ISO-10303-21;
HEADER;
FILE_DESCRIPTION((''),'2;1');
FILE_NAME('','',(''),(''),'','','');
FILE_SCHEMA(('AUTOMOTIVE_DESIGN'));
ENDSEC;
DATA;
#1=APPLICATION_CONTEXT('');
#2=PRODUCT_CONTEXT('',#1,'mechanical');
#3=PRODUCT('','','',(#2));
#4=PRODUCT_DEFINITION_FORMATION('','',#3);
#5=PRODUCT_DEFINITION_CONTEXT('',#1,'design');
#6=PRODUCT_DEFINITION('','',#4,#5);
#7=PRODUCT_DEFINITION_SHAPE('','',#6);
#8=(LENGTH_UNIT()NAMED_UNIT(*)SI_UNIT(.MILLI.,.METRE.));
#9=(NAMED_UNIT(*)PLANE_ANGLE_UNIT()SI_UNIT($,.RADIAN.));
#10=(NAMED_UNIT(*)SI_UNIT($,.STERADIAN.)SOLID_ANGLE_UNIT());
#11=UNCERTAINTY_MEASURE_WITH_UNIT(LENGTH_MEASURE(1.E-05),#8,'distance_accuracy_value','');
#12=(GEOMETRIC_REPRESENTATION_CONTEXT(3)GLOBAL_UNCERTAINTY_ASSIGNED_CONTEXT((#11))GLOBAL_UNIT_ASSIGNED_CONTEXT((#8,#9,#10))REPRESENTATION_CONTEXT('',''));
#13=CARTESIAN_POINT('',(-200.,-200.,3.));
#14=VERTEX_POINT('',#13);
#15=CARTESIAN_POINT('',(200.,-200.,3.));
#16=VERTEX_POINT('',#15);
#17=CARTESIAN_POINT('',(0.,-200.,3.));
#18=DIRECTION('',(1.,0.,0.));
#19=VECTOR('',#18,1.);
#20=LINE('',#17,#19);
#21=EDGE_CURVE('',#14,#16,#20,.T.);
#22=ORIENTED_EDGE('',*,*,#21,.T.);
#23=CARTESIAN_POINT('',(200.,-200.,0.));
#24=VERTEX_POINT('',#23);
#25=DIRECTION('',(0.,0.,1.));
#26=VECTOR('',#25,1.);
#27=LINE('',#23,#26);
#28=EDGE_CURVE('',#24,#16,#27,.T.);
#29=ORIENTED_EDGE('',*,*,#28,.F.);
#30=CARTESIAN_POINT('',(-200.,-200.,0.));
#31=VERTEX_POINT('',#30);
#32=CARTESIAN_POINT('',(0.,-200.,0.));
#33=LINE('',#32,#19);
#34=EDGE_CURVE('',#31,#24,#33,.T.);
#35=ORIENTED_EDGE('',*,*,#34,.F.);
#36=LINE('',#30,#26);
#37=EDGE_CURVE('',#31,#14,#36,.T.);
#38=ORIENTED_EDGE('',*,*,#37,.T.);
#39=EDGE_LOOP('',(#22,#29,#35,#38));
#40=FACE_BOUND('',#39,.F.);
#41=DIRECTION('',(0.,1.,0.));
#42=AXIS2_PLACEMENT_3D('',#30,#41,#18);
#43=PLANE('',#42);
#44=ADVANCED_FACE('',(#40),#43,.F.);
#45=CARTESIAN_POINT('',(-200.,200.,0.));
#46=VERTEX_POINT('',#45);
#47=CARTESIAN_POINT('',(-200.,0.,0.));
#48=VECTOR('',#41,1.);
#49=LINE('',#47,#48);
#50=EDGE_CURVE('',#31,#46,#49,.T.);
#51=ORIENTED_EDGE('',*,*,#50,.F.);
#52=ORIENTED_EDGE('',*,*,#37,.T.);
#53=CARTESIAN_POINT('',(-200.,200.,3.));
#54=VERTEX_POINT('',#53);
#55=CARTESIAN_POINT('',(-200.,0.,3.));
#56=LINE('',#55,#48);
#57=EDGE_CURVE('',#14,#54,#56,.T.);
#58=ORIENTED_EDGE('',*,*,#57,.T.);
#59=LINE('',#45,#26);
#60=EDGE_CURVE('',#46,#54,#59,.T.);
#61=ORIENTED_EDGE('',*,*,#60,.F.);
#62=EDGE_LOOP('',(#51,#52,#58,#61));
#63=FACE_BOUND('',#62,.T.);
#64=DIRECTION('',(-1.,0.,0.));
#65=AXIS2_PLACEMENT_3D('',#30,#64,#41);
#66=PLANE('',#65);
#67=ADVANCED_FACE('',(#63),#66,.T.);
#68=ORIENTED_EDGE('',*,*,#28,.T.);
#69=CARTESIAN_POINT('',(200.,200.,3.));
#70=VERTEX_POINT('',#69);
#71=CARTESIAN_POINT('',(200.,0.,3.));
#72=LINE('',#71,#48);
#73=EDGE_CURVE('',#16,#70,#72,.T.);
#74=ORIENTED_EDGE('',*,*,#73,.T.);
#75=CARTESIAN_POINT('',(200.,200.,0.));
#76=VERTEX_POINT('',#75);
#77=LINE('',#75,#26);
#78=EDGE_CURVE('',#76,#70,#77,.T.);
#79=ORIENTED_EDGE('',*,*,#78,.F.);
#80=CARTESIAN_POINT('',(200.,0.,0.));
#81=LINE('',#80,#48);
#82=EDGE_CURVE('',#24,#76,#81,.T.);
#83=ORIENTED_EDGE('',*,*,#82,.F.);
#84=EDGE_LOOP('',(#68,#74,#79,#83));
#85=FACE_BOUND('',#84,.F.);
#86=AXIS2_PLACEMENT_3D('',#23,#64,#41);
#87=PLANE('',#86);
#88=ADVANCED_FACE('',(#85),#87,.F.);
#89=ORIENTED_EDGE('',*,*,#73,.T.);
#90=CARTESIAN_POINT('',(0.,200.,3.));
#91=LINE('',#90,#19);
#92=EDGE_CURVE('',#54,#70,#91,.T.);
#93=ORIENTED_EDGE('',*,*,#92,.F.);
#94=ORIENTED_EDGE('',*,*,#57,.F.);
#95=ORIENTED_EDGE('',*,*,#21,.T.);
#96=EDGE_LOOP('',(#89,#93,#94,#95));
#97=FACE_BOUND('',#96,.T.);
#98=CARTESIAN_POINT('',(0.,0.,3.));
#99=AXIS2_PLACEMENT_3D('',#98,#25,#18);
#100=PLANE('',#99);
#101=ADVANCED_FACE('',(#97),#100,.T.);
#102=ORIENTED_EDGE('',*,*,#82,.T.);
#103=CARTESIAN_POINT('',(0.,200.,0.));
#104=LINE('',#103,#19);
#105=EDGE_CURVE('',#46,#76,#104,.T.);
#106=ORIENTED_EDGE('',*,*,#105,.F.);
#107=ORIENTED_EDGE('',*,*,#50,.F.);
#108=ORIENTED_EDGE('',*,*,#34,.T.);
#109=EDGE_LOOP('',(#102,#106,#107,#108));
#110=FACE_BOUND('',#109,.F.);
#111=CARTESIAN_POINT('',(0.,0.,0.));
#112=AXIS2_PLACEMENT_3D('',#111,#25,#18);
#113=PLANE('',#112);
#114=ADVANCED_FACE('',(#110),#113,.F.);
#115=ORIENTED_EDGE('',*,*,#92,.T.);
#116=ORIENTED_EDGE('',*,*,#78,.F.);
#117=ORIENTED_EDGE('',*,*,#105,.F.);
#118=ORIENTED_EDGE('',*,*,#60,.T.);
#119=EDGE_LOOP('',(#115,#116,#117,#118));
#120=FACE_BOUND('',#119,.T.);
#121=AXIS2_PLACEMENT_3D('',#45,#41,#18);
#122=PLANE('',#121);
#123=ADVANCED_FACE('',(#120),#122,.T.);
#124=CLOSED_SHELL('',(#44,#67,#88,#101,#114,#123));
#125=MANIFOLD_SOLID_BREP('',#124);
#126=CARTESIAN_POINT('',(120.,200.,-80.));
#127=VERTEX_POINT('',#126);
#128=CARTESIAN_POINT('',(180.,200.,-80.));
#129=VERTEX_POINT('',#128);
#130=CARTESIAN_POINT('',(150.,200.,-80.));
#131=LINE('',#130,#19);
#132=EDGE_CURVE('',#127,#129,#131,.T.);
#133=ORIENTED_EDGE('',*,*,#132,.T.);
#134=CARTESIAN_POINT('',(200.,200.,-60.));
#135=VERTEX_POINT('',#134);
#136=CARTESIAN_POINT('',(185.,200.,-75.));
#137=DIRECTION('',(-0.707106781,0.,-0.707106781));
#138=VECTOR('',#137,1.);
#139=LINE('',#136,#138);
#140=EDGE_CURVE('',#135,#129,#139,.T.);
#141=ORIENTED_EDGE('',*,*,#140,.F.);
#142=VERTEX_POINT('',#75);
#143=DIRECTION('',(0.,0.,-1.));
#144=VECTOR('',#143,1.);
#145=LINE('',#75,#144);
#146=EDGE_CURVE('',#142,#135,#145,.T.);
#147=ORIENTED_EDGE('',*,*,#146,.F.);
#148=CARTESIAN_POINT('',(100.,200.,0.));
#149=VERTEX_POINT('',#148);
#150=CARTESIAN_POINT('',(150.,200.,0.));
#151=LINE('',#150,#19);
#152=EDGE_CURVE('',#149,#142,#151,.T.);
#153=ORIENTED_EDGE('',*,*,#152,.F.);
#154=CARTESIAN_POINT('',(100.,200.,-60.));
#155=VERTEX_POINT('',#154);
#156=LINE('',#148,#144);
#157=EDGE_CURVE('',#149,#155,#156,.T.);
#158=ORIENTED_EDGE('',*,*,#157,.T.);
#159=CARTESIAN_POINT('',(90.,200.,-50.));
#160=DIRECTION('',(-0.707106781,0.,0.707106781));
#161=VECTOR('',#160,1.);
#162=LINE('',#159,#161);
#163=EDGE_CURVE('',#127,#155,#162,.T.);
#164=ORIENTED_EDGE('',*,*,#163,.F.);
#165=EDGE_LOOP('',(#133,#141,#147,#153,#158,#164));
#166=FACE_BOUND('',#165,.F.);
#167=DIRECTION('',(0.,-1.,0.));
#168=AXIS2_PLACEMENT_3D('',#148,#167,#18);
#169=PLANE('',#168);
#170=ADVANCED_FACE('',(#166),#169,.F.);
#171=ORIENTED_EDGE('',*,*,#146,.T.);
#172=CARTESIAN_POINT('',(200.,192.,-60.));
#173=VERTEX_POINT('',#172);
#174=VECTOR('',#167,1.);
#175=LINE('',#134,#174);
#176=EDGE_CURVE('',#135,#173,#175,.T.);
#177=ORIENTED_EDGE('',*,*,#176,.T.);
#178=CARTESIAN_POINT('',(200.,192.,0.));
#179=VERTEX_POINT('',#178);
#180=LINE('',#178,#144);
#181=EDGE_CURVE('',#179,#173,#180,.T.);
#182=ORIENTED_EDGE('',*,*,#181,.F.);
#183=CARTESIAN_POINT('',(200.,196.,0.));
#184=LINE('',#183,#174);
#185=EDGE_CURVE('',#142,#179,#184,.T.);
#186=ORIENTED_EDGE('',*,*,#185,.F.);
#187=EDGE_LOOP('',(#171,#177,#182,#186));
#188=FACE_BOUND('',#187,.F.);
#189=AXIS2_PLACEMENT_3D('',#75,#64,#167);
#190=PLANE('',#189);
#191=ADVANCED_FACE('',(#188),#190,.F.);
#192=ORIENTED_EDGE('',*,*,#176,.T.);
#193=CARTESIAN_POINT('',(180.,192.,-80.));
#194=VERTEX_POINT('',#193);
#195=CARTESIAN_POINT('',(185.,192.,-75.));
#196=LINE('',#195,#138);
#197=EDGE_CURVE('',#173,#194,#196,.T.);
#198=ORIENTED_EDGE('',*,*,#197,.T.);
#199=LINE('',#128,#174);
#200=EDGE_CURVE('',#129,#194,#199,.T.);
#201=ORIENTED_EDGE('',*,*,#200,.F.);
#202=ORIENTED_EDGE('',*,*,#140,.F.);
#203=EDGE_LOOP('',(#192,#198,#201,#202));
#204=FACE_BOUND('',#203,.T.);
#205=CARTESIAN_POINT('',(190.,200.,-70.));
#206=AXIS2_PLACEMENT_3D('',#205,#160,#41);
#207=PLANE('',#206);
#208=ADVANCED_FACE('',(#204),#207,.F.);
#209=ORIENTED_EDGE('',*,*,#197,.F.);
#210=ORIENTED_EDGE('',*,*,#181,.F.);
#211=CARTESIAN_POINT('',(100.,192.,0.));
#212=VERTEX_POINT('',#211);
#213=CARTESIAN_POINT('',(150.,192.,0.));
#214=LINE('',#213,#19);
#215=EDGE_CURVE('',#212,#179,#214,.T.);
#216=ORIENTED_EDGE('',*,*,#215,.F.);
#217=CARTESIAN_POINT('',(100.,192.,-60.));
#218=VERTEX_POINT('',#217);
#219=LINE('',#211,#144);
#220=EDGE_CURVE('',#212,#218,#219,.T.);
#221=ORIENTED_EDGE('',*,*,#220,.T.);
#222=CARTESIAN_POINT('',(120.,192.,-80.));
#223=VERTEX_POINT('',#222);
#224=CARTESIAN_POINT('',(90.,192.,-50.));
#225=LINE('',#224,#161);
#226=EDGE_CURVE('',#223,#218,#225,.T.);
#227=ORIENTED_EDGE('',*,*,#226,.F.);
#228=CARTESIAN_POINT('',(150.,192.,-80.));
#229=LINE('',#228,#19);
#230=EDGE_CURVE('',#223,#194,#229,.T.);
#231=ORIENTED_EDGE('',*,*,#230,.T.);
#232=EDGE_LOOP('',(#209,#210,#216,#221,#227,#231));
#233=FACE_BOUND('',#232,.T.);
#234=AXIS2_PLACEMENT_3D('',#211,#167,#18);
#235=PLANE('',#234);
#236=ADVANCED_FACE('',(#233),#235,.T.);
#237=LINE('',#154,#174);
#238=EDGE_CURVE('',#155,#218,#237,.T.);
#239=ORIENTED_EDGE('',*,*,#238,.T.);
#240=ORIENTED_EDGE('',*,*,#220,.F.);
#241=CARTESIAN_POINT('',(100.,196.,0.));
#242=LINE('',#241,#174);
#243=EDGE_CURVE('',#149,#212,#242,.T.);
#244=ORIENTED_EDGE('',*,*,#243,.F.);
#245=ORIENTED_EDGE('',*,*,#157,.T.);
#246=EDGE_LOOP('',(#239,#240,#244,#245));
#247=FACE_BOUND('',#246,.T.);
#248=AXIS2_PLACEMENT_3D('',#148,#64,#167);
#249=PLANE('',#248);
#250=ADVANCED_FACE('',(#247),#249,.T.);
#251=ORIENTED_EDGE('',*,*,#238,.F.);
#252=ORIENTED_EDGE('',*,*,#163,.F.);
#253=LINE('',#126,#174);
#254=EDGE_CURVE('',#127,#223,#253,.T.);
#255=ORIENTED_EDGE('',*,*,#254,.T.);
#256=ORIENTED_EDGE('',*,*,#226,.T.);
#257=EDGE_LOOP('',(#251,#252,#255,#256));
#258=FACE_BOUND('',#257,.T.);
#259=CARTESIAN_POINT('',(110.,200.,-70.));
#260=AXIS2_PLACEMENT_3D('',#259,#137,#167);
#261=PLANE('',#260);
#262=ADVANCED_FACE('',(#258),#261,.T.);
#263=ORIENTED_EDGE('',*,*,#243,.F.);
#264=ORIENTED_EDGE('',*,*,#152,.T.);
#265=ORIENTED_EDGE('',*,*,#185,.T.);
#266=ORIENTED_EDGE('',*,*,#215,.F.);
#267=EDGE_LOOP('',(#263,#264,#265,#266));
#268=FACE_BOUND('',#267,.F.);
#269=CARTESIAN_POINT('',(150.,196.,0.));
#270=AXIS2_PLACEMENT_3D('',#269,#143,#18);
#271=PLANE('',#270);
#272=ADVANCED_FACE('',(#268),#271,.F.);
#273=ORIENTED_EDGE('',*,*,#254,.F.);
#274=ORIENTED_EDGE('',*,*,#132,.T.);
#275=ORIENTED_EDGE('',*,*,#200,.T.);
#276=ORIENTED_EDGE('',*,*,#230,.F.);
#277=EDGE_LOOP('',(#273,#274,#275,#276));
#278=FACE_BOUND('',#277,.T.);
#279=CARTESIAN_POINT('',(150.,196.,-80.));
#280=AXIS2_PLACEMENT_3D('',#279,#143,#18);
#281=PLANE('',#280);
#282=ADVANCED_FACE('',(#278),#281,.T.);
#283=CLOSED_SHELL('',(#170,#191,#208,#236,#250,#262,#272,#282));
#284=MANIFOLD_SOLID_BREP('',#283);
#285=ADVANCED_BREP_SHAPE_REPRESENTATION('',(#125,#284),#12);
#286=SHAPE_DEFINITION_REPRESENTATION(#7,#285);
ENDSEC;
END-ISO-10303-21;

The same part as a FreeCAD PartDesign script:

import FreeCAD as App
import Part
import Sketcher
from FreeCAD import Vector


def edges_at(feature, points):
    """Names of the edges that pass closest to the given points."""
    edges = feature.Shape.Edges
    near = lambda p: min(range(len(edges)), key=lambda i: edges[i].distToShape(Part.Vertex(*p))[0])
    return sorted({f"Edge{near(p) + 1}" for p in points})


def add_polygon(sketch, points):
    """Adds a closed chain of lines whose ends are joined by coincident constraints."""
    first, n = sketch.GeometryCount, len(points)
    for a, b in zip(points, points[1:] + points[:1]):
        sketch.addGeometry(Part.LineSegment(App.Vector(*a, 0), App.Vector(*b, 0)), False)
    for i in range(n):
        sketch.addConstraint(Sketcher.Constraint("Coincident", first + i, 2, first + (i + 1) % n, 1))

doc = App.newDocument("Part")
body = doc.addObject("PartDesign::Body", "Body")

# Sketch on XY plane
sketch1 = body.newObject("Sketcher::SketchObject", "Sketch")
sketch1.AttachmentSupport = (doc.getObject("XY_Plane"), [""])
sketch1.MapMode = "FlatFace"
add_polygon(sketch1, [(-200, 200), (-200, -200), (200, -200), (200, 200)])  # lines 0-3
sketch1.addConstraint([
    Sketcher.Constraint("Vertical", 0),
    Sketcher.Constraint("Horizontal", 1),
    Sketcher.Constraint("Vertical", 2),
    Sketcher.Constraint("Horizontal", 3),
    Sketcher.Constraint("Symmetric", 0, 2, 2, 2, -1, 1),
    Sketcher.Constraint("Equal", 3, 0),
    Sketcher.Constraint("DistanceX", 1, 1, 1, 2, 400.0),
])
pad1 = body.newObject("PartDesign::Pad", "Pad")
pad1.Profile = sketch1
pad1.Length = 3
body2 = doc.addObject("PartDesign::Body", "Body001")

# Sketch on XY plane
sketch2 = body2.newObject("Sketcher::SketchObject", "Sketch001")
sketch2.AttachmentSupport = (doc.getObject("XY_Plane001"), [""])
sketch2.MapMode = "FlatFace"
add_polygon(sketch2, [(100, 192), (100, 200), (200, 200), (200, 192)])  # lines 0-3
sketch2.addConstraint([
    Sketcher.Constraint("Vertical", 0),
    Sketcher.Constraint("Horizontal", 1),
    Sketcher.Constraint("Vertical", 2),
    Sketcher.Constraint("Horizontal", 3),
    Sketcher.Constraint("DistanceX", 1, 1, 1, 2, 100.0),
    Sketcher.Constraint("DistanceY", 0, 1, 0, 2, 8.0),
    Sketcher.Constraint("DistanceX", -1, 1, 0, 2, 100.0),
    Sketcher.Constraint("DistanceY", -1, 1, 0, 2, 200.0),
])
pad2 = body2.newObject("PartDesign::Pad", "Pad001")
pad2.Profile = sketch2
pad2.Length = 80
pad2.Reversed = True
doc.recompute()

chamfer = body2.newObject("PartDesign::Chamfer", "Chamfer")
chamfer.Base = (pad2, edges_at(pad2, [(200, 196, -80)]))
chamfer.Size = 20
doc.recompute()

chamfer2 = body2.newObject("PartDesign::Chamfer", "Chamfer001")
chamfer2.Base = (chamfer, edges_at(chamfer, [(100, 196, -80)]))
chamfer2.Size = 20

doc.recompute()
